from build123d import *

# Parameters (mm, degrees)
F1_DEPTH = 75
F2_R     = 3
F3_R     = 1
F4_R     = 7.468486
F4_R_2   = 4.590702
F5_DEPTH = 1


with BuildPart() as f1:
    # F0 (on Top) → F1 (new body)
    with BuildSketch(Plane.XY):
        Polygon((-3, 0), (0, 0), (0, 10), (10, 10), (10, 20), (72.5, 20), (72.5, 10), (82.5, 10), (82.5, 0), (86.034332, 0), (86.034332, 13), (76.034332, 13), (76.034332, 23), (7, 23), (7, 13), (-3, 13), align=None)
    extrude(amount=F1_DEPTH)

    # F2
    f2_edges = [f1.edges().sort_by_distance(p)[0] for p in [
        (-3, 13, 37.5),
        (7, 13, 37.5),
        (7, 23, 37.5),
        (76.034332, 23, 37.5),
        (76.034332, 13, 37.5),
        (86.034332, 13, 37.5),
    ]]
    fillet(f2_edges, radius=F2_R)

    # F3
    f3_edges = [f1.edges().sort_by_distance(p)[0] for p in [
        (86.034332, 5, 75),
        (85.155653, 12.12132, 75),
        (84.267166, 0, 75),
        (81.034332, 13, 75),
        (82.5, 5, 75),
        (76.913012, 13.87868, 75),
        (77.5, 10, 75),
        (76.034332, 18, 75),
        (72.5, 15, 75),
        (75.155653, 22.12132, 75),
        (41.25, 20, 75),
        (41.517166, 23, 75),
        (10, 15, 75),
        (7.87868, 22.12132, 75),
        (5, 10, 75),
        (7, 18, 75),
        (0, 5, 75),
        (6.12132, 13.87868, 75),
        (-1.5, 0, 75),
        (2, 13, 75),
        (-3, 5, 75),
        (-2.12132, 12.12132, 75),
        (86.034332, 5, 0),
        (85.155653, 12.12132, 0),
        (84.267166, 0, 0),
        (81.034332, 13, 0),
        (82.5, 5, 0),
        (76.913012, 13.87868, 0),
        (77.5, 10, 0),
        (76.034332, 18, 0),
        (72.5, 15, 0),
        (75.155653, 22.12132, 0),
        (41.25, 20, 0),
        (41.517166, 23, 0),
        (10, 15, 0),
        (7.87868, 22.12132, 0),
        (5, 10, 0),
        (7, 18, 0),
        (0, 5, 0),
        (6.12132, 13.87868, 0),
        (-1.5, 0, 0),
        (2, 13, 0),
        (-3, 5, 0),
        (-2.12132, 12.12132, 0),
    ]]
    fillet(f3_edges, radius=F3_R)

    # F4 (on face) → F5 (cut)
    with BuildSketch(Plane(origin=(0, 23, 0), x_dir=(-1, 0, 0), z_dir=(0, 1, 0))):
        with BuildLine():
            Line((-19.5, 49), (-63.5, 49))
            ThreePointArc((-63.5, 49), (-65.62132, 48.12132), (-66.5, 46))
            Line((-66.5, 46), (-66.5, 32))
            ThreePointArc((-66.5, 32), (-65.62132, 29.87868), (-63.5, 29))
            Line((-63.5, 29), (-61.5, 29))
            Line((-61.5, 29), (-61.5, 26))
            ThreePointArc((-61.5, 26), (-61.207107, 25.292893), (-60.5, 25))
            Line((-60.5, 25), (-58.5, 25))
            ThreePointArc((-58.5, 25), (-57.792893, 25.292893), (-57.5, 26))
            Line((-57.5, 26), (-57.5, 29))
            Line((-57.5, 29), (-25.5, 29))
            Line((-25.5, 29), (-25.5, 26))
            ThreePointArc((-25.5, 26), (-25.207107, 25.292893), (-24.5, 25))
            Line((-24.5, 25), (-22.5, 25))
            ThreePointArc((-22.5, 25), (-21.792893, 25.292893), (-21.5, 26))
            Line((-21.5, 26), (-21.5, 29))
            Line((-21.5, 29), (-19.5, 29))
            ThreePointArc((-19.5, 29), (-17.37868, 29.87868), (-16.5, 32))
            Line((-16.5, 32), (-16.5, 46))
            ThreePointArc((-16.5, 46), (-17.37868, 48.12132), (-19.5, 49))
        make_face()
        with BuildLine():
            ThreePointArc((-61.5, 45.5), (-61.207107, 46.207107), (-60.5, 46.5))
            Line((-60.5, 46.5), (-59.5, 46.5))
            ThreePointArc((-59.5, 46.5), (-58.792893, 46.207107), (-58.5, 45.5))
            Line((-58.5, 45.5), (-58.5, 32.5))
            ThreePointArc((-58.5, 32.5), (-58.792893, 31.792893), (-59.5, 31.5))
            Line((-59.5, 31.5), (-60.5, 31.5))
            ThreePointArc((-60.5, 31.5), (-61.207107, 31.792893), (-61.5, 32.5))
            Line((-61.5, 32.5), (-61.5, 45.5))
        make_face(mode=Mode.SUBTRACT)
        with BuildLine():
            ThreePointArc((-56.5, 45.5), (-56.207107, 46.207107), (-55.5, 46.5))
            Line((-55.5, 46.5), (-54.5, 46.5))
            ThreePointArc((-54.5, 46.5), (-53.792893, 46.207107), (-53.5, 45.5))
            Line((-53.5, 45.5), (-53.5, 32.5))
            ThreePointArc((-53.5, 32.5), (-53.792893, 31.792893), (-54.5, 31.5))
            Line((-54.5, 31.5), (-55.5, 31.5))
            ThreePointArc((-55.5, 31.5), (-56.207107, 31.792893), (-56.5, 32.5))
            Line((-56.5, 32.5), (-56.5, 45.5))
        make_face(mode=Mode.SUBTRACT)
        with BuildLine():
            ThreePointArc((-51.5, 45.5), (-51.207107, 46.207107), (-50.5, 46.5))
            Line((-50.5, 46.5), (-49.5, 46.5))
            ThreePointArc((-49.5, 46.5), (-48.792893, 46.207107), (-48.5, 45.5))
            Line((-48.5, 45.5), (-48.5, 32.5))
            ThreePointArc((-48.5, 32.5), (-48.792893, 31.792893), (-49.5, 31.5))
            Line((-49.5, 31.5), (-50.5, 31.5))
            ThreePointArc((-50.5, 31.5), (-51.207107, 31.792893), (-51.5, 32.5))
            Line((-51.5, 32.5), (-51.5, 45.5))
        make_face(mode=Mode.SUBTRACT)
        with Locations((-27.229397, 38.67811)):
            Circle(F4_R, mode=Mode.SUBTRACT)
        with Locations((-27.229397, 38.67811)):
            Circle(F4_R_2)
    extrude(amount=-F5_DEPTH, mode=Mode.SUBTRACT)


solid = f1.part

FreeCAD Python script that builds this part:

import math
import FreeCAD as App
import Part
import Sketcher

V = App.Vector


def edges_at(feature, points):
    """Names of the edges that pass closest to the given points."""
    edges = feature.Shape.Edges
    near = lambda p: min(range(len(edges)), key=lambda i: edges[i].distToShape(Part.Vertex(*p))[0])
    return sorted({f"Edge{near(p) + 1}" for p in points})

doc = App.newDocument("Part")
body = doc.addObject("PartDesign::Body", "Body")

# Sketch on XY plane
sketch1 = doc.addObject("Sketcher::SketchObject", "Sketch")
body.addObject(sketch1)
sketch1.AttachmentSupport = (doc.XY_Plane, [""])
sketch1.MapMode = "FlatFace"
sketch1.addGeometry(Part.LineSegment(V(-3, 0, 0), V(0, 0, 0)), False)
sketch1.addGeometry(Part.LineSegment(V(0, 0, 0), V(0, 10, 0)), False)
sketch1.addGeometry(Part.LineSegment(V(0, 10, 0), V(10, 10, 0)), False)
sketch1.addGeometry(Part.LineSegment(V(10, 10, 0), V(10, 20, 0)), False)
sketch1.addGeometry(Part.LineSegment(V(10, 20, 0), V(72.5, 20, 0)), False)
sketch1.addGeometry(Part.LineSegment(V(72.5, 20, 0), V(72.5, 10, 0)), False)
sketch1.addGeometry(Part.LineSegment(V(72.5, 10, 0), V(82.5, 10, 0)), False)
sketch1.addGeometry(Part.LineSegment(V(82.5, 10, 0), V(82.5, 0, 0)), False)
sketch1.addGeometry(Part.LineSegment(V(82.5, 0, 0), V(86.034332, 0, 0)), False)
sketch1.addGeometry(Part.LineSegment(V(86.034332, 0, 0), V(86.034332, 13, 0)), False)
sketch1.addGeometry(Part.LineSegment(V(86.034332, 13, 0), V(76.034332, 13, 0)), False)
sketch1.addGeometry(Part.LineSegment(V(76.034332, 13, 0), V(76.034332, 23, 0)), False)
sketch1.addGeometry(Part.LineSegment(V(76.034332, 23, 0), V(7, 23, 0)), False)
sketch1.addGeometry(Part.LineSegment(V(7, 23, 0), V(7, 13, 0)), False)
sketch1.addGeometry(Part.LineSegment(V(7, 13, 0), V(-3, 13, 0)), False)
sketch1.addGeometry(Part.LineSegment(V(-3, 13, 0), V(-3, 0, 0)), False)
sketch1.addConstraint(Sketcher.Constraint("Coincident", 0, 2, 1, 1))
sketch1.addConstraint(Sketcher.Constraint("Coincident", 1, 2, 2, 1))
sketch1.addConstraint(Sketcher.Constraint("Coincident", 2, 2, 3, 1))
sketch1.addConstraint(Sketcher.Constraint("Coincident", 3, 2, 4, 1))
sketch1.addConstraint(Sketcher.Constraint("Coincident", 4, 2, 5, 1))
sketch1.addConstraint(Sketcher.Constraint("Coincident", 5, 2, 6, 1))
sketch1.addConstraint(Sketcher.Constraint("Coincident", 6, 2, 7, 1))
sketch1.addConstraint(Sketcher.Constraint("Coincident", 7, 2, 8, 1))
sketch1.addConstraint(Sketcher.Constraint("Coincident", 8, 2, 9, 1))
sketch1.addConstraint(Sketcher.Constraint("Coincident", 9, 2, 10, 1))
sketch1.addConstraint(Sketcher.Constraint("Coincident", 10, 2, 11, 1))
sketch1.addConstraint(Sketcher.Constraint("Coincident", 11, 2, 12, 1))
sketch1.addConstraint(Sketcher.Constraint("Coincident", 12, 2, 13, 1))
sketch1.addConstraint(Sketcher.Constraint("Coincident", 13, 2, 14, 1))
sketch1.addConstraint(Sketcher.Constraint("Coincident", 14, 2, 15, 1))
sketch1.addConstraint(Sketcher.Constraint("Coincident", 15, 2, 0, 1))
sketch1.addConstraint(Sketcher.Constraint("Horizontal", 0))
sketch1.addConstraint(Sketcher.Constraint("Vertical", 1))
sketch1.addConstraint(Sketcher.Constraint("Horizontal", 2))
sketch1.addConstraint(Sketcher.Constraint("Vertical", 3))
sketch1.addConstraint(Sketcher.Constraint("Horizontal", 4))
sketch1.addConstraint(Sketcher.Constraint("Vertical", 5))
sketch1.addConstraint(Sketcher.Constraint("Horizontal", 6))
sketch1.addConstraint(Sketcher.Constraint("Vertical", 7))
sketch1.addConstraint(Sketcher.Constraint("Horizontal", 8))
sketch1.addConstraint(Sketcher.Constraint("Vertical", 9))
sketch1.addConstraint(Sketcher.Constraint("Horizontal", 10))
sketch1.addConstraint(Sketcher.Constraint("Vertical", 11))
sketch1.addConstraint(Sketcher.Constraint("Horizontal", 12))
sketch1.addConstraint(Sketcher.Constraint("Vertical", 13))
sketch1.addConstraint(Sketcher.Constraint("Horizontal", 14))
sketch1.addConstraint(Sketcher.Constraint("Vertical", 15))
sketch1.addConstraint(Sketcher.Constraint("Coincident", 0, 2, -1, 1))
sketch1.addConstraint(Sketcher.Constraint("PointOnObject", 7, 2, -1))
sketch1.addConstraint(Sketcher.Constraint("Horizontal", 2, 2, 5, 2))
sketch1.addConstraint(Sketcher.Constraint("Horizontal", 10, 2, 13, 2))
sketch1.addConstraint(Sketcher.Constraint("Equal", 2, 6))
sketch1.addConstraint(Sketcher.Constraint("Equal", 6, 10))
sketch1.addConstraint(Sketcher.Constraint("Equal", 10, 14))
sketch1.addConstraint(Sketcher.Constraint("Equal", 14, 1))
sketch1.addConstraint(Sketcher.Constraint("Equal", 1, 3))
sketch1.addConstraint(Sketcher.Constraint("Equal", 7, 11))
sketch1.addConstraint(Sketcher.Constraint("DistanceX", 0, 1, 0, 2, 3.0))
sketch1.addConstraint(Sketcher.Constraint("DistanceX", 2, 1, 2, 2, 10.0))
sketch1.addConstraint(Sketcher.Constraint("DistanceY", 9, 1, 9, 2, 13.0))
sketch1.addConstraint(Sketcher.Constraint("DistanceX", 4, 1, 4, 2, 62.5))
sketch1.addConstraint(Sketcher.Constraint("DistanceX", 8, 1, 8, 2, 3.534332))
pad1 = doc.addObject("PartDesign::Pad", "Pad")
body.addObject(pad1)
pad1.Profile = sketch1
pad1.Length = 75
doc.recompute()

fillet = doc.addObject("PartDesign::Fillet", "Fillet")
body.addObject(fillet)
fillet.Base = (pad1, edges_at(pad1, [
    (-3, 13, 37.5),
    (7, 13, 37.5),
    (7, 23, 37.5),
    (76.034, 23, 37.5),
    (76.034, 13, 37.5),
    (86.034, 13, 37.5),
]))
fillet.Radius = 3
doc.recompute()

fillet2 = doc.addObject("PartDesign::Fillet", "Fillet001")
body.addObject(fillet2)
fillet2.Base = (fillet, edges_at(fillet, [
    (86.034, 5, 75),
    (85.156, 12.121, 75),
    (84.267, 0, 75),
    (81.034, 13, 75),
    (82.5, 5, 75),
    (76.913, 13.879, 75),
    (77.5, 10, 75),
    (76.034, 18, 75),
    (72.5, 15, 75),
    (75.156, 22.121, 75),
    (41.25, 20, 75),
    (41.517, 23, 75),
    (10, 15, 75),
    (7.879, 22.121, 75),
    (5, 10, 75),
    (7, 18, 75),
    (0, 5, 75),
    (6.121, 13.879, 75),
    (-1.5, 0, 75),
    (2, 13, 75),
    (-3, 5, 75),
    (-2.121, 12.121, 75),
    (86.034, 5, 0),
    (85.156, 12.121, 0),
    (84.267, 0, 0),
    (81.034, 13, 0),
    (82.5, 5, 0),
    (76.913, 13.879, 0),
    (77.5, 10, 0),
    (76.034, 18, 0),
    (72.5, 15, 0),
    (75.156, 22.121, 0),
    (41.25, 20, 0),
    (41.517, 23, 0),
    (10, 15, 0),
    (7.879, 22.121, 0),
    (5, 10, 0),
    (7, 18, 0),
    (0, 5, 0),
    (6.121, 13.879, 0),
    (-1.5, 0, 0),
    (2, 13, 0),
    (-3, 5, 0),
    (-2.121, 12.121, 0),
]))
fillet2.Radius = 1

# Sketch on XZ plane
sketch2 = doc.addObject("Sketcher::SketchObject", "Sketch001")
body.addObject(sketch2)
sketch2.AttachmentSupport = (doc.XZ_Plane, [""])
sketch2.MapMode = "FlatFace"
sketch2.AttachmentOffset = App.Placement(V(0, 0, -23), App.Rotation())
sketch2.addGeometry(Part.LineSegment(V(19.5, 49, 0), V(63.5, 49, 0)), False)
sketch2.addGeometry(Part.ArcOfCircle(Part.Circle(V(63.499999, 45.999999, 0), V(0, 0, 1), 3.000001), math.radians(0.000022), math.radians(89.999978)), False)
sketch2.addGeometry(Part.LineSegment(V(66.5, 46, 0), V(66.5, 32, 0)), False)
sketch2.addGeometry(Part.ArcOfCircle(Part.Circle(V(63.499999, 32.000001, 0), V(0, 0, 1), 3.000001), math.radians(-89.999978), math.radians(-0.000022)), False)
sketch2.addGeometry(Part.LineSegment(V(63.5, 29, 0), V(61.5, 29, 0)), False)
sketch2.addGeometry(Part.LineSegment(V(61.5, 29, 0), V(61.5, 26, 0)), False)
sketch2.addGeometry(Part.ArcOfCircle(Part.Circle(V(60.500001, 25.999999, 0), V(0, 0, 1), 0.999999), math.radians(-90.000043), math.radians(0.000043)), False)
sketch2.addGeometry(Part.LineSegment(V(60.5, 25, 0), V(58.5, 25, 0)), False)
sketch2.addGeometry(Part.ArcOfCircle(Part.Circle(V(58.499999, 25.999999, 0), V(0, 0, 1), 0.999999), math.radians(179.999957), math.radians(270.000043)), False)
sketch2.addGeometry(Part.LineSegment(V(57.5, 26, 0), V(57.5, 29, 0)), False)
sketch2.addGeometry(Part.LineSegment(V(57.5, 29, 0), V(25.5, 29, 0)), False)
sketch2.addGeometry(Part.LineSegment(V(25.5, 29, 0), V(25.5, 26, 0)), False)
sketch2.addGeometry(Part.ArcOfCircle(Part.Circle(V(24.500001, 25.999999, 0), V(0, 0, 1), 0.999999), math.radians(-90.000043), math.radians(0.000043)), False)
sketch2.addGeometry(Part.LineSegment(V(24.5, 25, 0), V(22.5, 25, 0)), False)
sketch2.addGeometry(Part.ArcOfCircle(Part.Circle(V(22.499999, 25.999999, 0), V(0, 0, 1), 0.999999), math.radians(179.999957), math.radians(270.000043)), False)
sketch2.addGeometry(Part.LineSegment(V(21.5, 26, 0), V(21.5, 29, 0)), False)
sketch2.addGeometry(Part.LineSegment(V(21.5, 29, 0), V(19.5, 29, 0)), False)
sketch2.addGeometry(Part.ArcOfCircle(Part.Circle(V(19.500001, 32.000001, 0), V(0, 0, 1), 3.000001), math.radians(-179.999978), math.radians(-90.000022)), False)
sketch2.addGeometry(Part.LineSegment(V(16.5, 32, 0), V(16.5, 46, 0)), False)
sketch2.addGeometry(Part.ArcOfCircle(Part.Circle(V(19.500001, 45.999999, 0), V(0, 0, 1), 3.000001), math.radians(90.000022), math.radians(179.999978)), False)
sketch2.addGeometry(Part.Circle(V(27.229397, 38.67811, 0), V(0, 0, 1), 7.468486), False)
sketch2.addGeometry(Part.LineSegment(V(61.5, 32.5, 0), V(61.5, 45.5, 0)), False)
sketch2.addGeometry(Part.ArcOfCircle(Part.Circle(V(60.500001, 45.500001, 0), V(0, 0, 1), 0.999999), math.radians(-0.000043), math.radians(90.000043)), False)
sketch2.addGeometry(Part.LineSegment(V(60.5, 46.5, 0), V(59.5, 46.5, 0)), False)
sketch2.addGeometry(Part.ArcOfCircle(Part.Circle(V(59.499999, 45.500001, 0), V(0, 0, 1), 0.999999), math.radians(89.999957), math.radians(180.000043)), False)
sketch2.addGeometry(Part.LineSegment(V(58.5, 45.5, 0), V(58.5, 32.5, 0)), False)
sketch2.addGeometry(Part.ArcOfCircle(Part.Circle(V(59.499999, 32.499999, 0), V(0, 0, 1), 0.999999), math.radians(179.999957), math.radians(270.000043)), False)
sketch2.addGeometry(Part.LineSegment(V(59.5, 31.5, 0), V(60.5, 31.5, 0)), False)
sketch2.addGeometry(Part.ArcOfCircle(Part.Circle(V(60.500001, 32.499999, 0), V(0, 0, 1), 0.999999), math.radians(-90.000043), math.radians(0.000043)), False)
sketch2.addGeometry(Part.LineSegment(V(56.5, 32.5, 0), V(56.5, 45.5, 0)), False)
sketch2.addGeometry(Part.ArcOfCircle(Part.Circle(V(55.500001, 45.500001, 0), V(0, 0, 1), 0.999999), math.radians(-0.000043), math.radians(90.000043)), False)
sketch2.addGeometry(Part.LineSegment(V(55.5, 46.5, 0), V(54.5, 46.5, 0)), False)
sketch2.addGeometry(Part.ArcOfCircle(Part.Circle(V(54.499999, 45.500001, 0), V(0, 0, 1), 0.999999), math.radians(89.999957), math.radians(180.000043)), False)
sketch2.addGeometry(Part.LineSegment(V(53.5, 45.5, 0), V(53.5, 32.5, 0)), False)
sketch2.addGeometry(Part.ArcOfCircle(Part.Circle(V(54.499999, 32.499999, 0), V(0, 0, 1), 0.999999), math.radians(179.999957), math.radians(270.000043)), False)
sketch2.addGeometry(Part.LineSegment(V(54.5, 31.5, 0), V(55.5, 31.5, 0)), False)
sketch2.addGeometry(Part.ArcOfCircle(Part.Circle(V(55.500001, 32.499999, 0), V(0, 0, 1), 0.999999), math.radians(-90.000043), math.radians(0.000043)), False)
sketch2.addGeometry(Part.LineSegment(V(51.5, 32.5, 0), V(51.5, 45.5, 0)), False)
sketch2.addGeometry(Part.ArcOfCircle(Part.Circle(V(50.500001, 45.500001, 0), V(0, 0, 1), 0.999999), math.radians(-0.000043), math.radians(90.000043)), False)
sketch2.addGeometry(Part.LineSegment(V(50.5, 46.5, 0), V(49.5, 46.5, 0)), False)
sketch2.addGeometry(Part.ArcOfCircle(Part.Circle(V(49.499999, 45.500001, 0), V(0, 0, 1), 0.999999), math.radians(89.999957), math.radians(180.000043)), False)
sketch2.addGeometry(Part.LineSegment(V(48.5, 45.5, 0), V(48.5, 32.5, 0)), False)
sketch2.addGeometry(Part.ArcOfCircle(Part.Circle(V(49.499999, 32.499999, 0), V(0, 0, 1), 0.999999), math.radians(179.999957), math.radians(270.000043)), False)
sketch2.addGeometry(Part.LineSegment(V(49.5, 31.5, 0), V(50.5, 31.5, 0)), False)
sketch2.addGeometry(Part.ArcOfCircle(Part.Circle(V(50.500001, 32.499999, 0), V(0, 0, 1), 0.999999), math.radians(-90.000043), math.radians(0.000043)), False)
sketch2.addGeometry(Part.Circle(V(27.229397, 38.67811, 0), V(0, 0, 1), 4.590702), False)
sketch2.addConstraint(Sketcher.Constraint("Tangent", 0, 2, 1, 2))
sketch2.addConstraint(Sketcher.Constraint("Tangent", 1, 1, 2, 1))
sketch2.addConstraint(Sketcher.Constraint("Tangent", 2, 2, 3, 2))
sketch2.addConstraint(Sketcher.Constraint("Tangent", 3, 1, 4, 1))
sketch2.addConstraint(Sketcher.Constraint("Coincident", 4, 2, 5, 1))
sketch2.addConstraint(Sketcher.Constraint("Tangent", 5, 2, 6, 2))
sketch2.addConstraint(Sketcher.Constraint("Tangent", 6, 1, 7, 1))
sketch2.addConstraint(Sketcher.Constraint("Tangent", 7, 2, 8, 2))
sketch2.addConstraint(Sketcher.Constraint("Tangent", 8, 1, 9, 1))
sketch2.addConstraint(Sketcher.Constraint("Coincident", 9, 2, 10, 1))
sketch2.addConstraint(Sketcher.Constraint("Coincident", 10, 2, 11, 1))
sketch2.addConstraint(Sketcher.Constraint("Tangent", 11, 2, 12, 2))
sketch2.addConstraint(Sketcher.Constraint("Tangent", 12, 1, 13, 1))
sketch2.addConstraint(Sketcher.Constraint("Tangent", 13, 2, 14, 2))
sketch2.addConstraint(Sketcher.Constraint("Tangent", 14, 1, 15, 1))
sketch2.addConstraint(Sketcher.Constraint("Coincident", 15, 2, 16, 1))
sketch2.addConstraint(Sketcher.Constraint("Tangent", 16, 2, 17, 2))
sketch2.addConstraint(Sketcher.Constraint("Tangent", 17, 1, 18, 1))
sketch2.addConstraint(Sketcher.Constraint("Tangent", 18, 2, 19, 2))
sketch2.addConstraint(Sketcher.Constraint("Tangent", 19, 1, 0, 1))
sketch2.addConstraint(Sketcher.Constraint("Tangent", 21, 2, 22, 1))
sketch2.addConstraint(Sketcher.Constraint("Tangent", 22, 2, 23, 1))
sketch2.addConstraint(Sketcher.Constraint("Tangent", 23, 2, 24, 1))
sketch2.addConstraint(Sketcher.Constraint("Tangent", 24, 2, 25, 1))
sketch2.addConstraint(Sketcher.Constraint("Tangent", 25, 2, 26, 1))
sketch2.addConstraint(Sketcher.Constraint("Tangent", 26, 2, 27, 1))
sketch2.addConstraint(Sketcher.Constraint("Tangent", 27, 2, 28, 1))
sketch2.addConstraint(Sketcher.Constraint("Tangent", 28, 2, 21, 1))
sketch2.addConstraint(Sketcher.Constraint("Tangent", 29, 2, 30, 1))
sketch2.addConstraint(Sketcher.Constraint("Tangent", 30, 2, 31, 1))
sketch2.addConstraint(Sketcher.Constraint("Tangent", 31, 2, 32, 1))
sketch2.addConstraint(Sketcher.Constraint("Tangent", 32, 2, 33, 1))
sketch2.addConstraint(Sketcher.Constraint("Tangent", 33, 2, 34, 1))
sketch2.addConstraint(Sketcher.Constraint("Tangent", 34, 2, 35, 1))
sketch2.addConstraint(Sketcher.Constraint("Tangent", 35, 2, 36, 1))
sketch2.addConstraint(Sketcher.Constraint("Tangent", 36, 2, 29, 1))
sketch2.addConstraint(Sketcher.Constraint("Tangent", 37, 2, 38, 1))
sketch2.addConstraint(Sketcher.Constraint("Tangent", 38, 2, 39, 1))
sketch2.addConstraint(Sketcher.Constraint("Tangent", 39, 2, 40, 1))
sketch2.addConstraint(Sketcher.Constraint("Tangent", 40, 2, 41, 1))
sketch2.addConstraint(Sketcher.Constraint("Tangent", 41, 2, 42, 1))
sketch2.addConstraint(Sketcher.Constraint("Tangent", 42, 2, 43, 1))
sketch2.addConstraint(Sketcher.Constraint("Tangent", 43, 2, 44, 1))
sketch2.addConstraint(Sketcher.Constraint("Tangent", 44, 2, 37, 1))
sketch2.addConstraint(Sketcher.Constraint("Horizontal", 0))
sketch2.addConstraint(Sketcher.Constraint("Vertical", 2))
sketch2.addConstraint(Sketcher.Constraint("Horizontal", 4))
sketch2.addConstraint(Sketcher.Constraint("Vertical", 5))
sketch2.addConstraint(Sketcher.Constraint("Horizontal", 7))
sketch2.addConstraint(Sketcher.Constraint("Vertical", 9))
sketch2.addConstraint(Sketcher.Constraint("Horizontal", 10))
sketch2.addConstraint(Sketcher.Constraint("Vertical", 11))
sketch2.addConstraint(Sketcher.Constraint("Horizontal", 13))
sketch2.addConstraint(Sketcher.Constraint("Vertical", 15))
sketch2.addConstraint(Sketcher.Constraint("Horizontal", 16))
sketch2.addConstraint(Sketcher.Constraint("Vertical", 18))
sketch2.addConstraint(Sketcher.Constraint("Vertical", 21))
sketch2.addConstraint(Sketcher.Constraint("Horizontal", 23))
sketch2.addConstraint(Sketcher.Constraint("Vertical", 25))
sketch2.addConstraint(Sketcher.Constraint("Horizontal", 27))
sketch2.addConstraint(Sketcher.Constraint("Vertical", 29))
sketch2.addConstraint(Sketcher.Constraint("Horizontal", 31))
sketch2.addConstraint(Sketcher.Constraint("Vertical", 33))
sketch2.addConstraint(Sketcher.Constraint("Horizontal", 35))
sketch2.addConstraint(Sketcher.Constraint("Vertical", 37))
sketch2.addConstraint(Sketcher.Constraint("Horizontal", 39))
sketch2.addConstraint(Sketcher.Constraint("Vertical", 41))
sketch2.addConstraint(Sketcher.Constraint("Horizontal", 43))
sketch2.addConstraint(Sketcher.Constraint("Coincident", 45, 3, 20, 3))
sketch2.addConstraint(Sketcher.Constraint("Equal", 1, 3))
sketch2.addConstraint(Sketcher.Constraint("Equal", 6, 8))
sketch2.addConstraint(Sketcher.Constraint("Equal", 8, 12))
sketch2.addConstraint(Sketcher.Constraint("Equal", 12, 14))
sketch2.addConstraint(Sketcher.Constraint("Equal", 3, 17))
sketch2.addConstraint(Sketcher.Constraint("Equal", 17, 19))
sketch2.addConstraint(Sketcher.Constraint("Equal", 14, 22))
sketch2.addConstraint(Sketcher.Constraint("Equal", 22, 24))
sketch2.addConstraint(Sketcher.Constraint("Equal", 24, 26))
sketch2.addConstraint(Sketcher.Constraint("Equal", 26, 28))
sketch2.addConstraint(Sketcher.Constraint("Equal", 28, 30))
sketch2.addConstraint(Sketcher.Constraint("Equal", 30, 32))
sketch2.addConstraint(Sketcher.Constraint("Equal", 32, 34))
sketch2.addConstraint(Sketcher.Constraint("Equal", 34, 36))
sketch2.addConstraint(Sketcher.Constraint("Equal", 36, 38))
sketch2.addConstraint(Sketcher.Constraint("Equal", 38, 40))
sketch2.addConstraint(Sketcher.Constraint("Equal", 40, 42))
sketch2.addConstraint(Sketcher.Constraint("Equal", 42, 44))
sketch2.addConstraint(Sketcher.Constraint("Horizontal", 8, 3, 12, 3))
sketch2.addConstraint(Sketcher.Constraint("Horizontal", 3, 3, 17, 3))
sketch2.addConstraint(Sketcher.Constraint("Horizontal", 24, 3, 30, 3))
sketch2.addConstraint(Sketcher.Constraint("Horizontal", 28, 3, 34, 3))
sketch2.addConstraint(Sketcher.Constraint("Horizontal", 32, 3, 38, 3))
sketch2.addConstraint(Sketcher.Constraint("Horizontal", 36, 3, 42, 3))
sketch2.addConstraint(Sketcher.Constraint("Horizontal", 4, 2, 9, 2))
sketch2.addConstraint(Sketcher.Constraint("Vertical", 6, 3, 22, 3))
sketch2.addConstraint(Sketcher.Constraint("Vertical", 7, 2, 24, 2))
sketch2.addConstraint(Sketcher.Constraint("Equal", 4, 7))
sketch2.addConstraint(Sketcher.Constraint("Equal", 7, 13))
sketch2.addConstraint(Sketcher.Constraint("Equal", 13, 16))
sketch2.addConstraint(Sketcher.Constraint("Equal", 27, 31))
sketch2.addConstraint(Sketcher.Constraint("Equal", 35, 39))
sketch2.addConstraint(Sketcher.Constraint("Radius", 1, 3.000001))
sketch2.addConstraint(Sketcher.Constraint("Radius", 6, 0.999999))
sketch2.addConstraint(Sketcher.Constraint("DistanceX", 0, 1, 0, 2, 44.0))
sketch2.addConstraint(Sketcher.Constraint("DistanceX", 4, 2, 4, 1, 2.0))
sketch2.addConstraint(Sketcher.Constraint("DistanceY", 2, 2, 2, 1, 14.0))
sketch2.addConstraint(Sketcher.Constraint("DistanceY", 5, 2, 5, 1, 3.0))
sketch2.addConstraint(Sketcher.Constraint("DistanceY", 21, 1, 21, 2, 13.0))
sketch2.addConstraint(Sketcher.Constraint("DistanceY", -1, 1, 1, 3, 45.999999))
sketch2.addConstraint(Sketcher.Constraint("DistanceX", -1, 1, 1, 3, 63.499999))
sketch2.addConstraint(Sketcher.Constraint("DistanceY", -1, 1, 22, 3, 45.500001))
sketch2.addConstraint(Sketcher.Constraint("DistanceX", -1, 1, 30, 3, 55.500001))
sketch2.addConstraint(Sketcher.Constraint("DistanceX", -1, 1, 38, 3, 50.500001))
sketch2.addConstraint(Sketcher.Constraint("Diameter", 20, 14.936972))
sketch2.addConstraint(Sketcher.Constraint("Diameter", 45, 9.181404))
sketch2.addConstraint(Sketcher.Constraint("DistanceY", -1, 1, 20, 3, 38.67811))
sketch2.addConstraint(Sketcher.Constraint("DistanceX", -1, 1, 20, 3, 27.229397))
pocket1 = doc.addObject("PartDesign::Pocket", "Pocket")
body.addObject(pocket1)
pocket1.Profile = sketch2
pocket1.Length = 1
pocket1.Reversed = True

doc.recompute()
